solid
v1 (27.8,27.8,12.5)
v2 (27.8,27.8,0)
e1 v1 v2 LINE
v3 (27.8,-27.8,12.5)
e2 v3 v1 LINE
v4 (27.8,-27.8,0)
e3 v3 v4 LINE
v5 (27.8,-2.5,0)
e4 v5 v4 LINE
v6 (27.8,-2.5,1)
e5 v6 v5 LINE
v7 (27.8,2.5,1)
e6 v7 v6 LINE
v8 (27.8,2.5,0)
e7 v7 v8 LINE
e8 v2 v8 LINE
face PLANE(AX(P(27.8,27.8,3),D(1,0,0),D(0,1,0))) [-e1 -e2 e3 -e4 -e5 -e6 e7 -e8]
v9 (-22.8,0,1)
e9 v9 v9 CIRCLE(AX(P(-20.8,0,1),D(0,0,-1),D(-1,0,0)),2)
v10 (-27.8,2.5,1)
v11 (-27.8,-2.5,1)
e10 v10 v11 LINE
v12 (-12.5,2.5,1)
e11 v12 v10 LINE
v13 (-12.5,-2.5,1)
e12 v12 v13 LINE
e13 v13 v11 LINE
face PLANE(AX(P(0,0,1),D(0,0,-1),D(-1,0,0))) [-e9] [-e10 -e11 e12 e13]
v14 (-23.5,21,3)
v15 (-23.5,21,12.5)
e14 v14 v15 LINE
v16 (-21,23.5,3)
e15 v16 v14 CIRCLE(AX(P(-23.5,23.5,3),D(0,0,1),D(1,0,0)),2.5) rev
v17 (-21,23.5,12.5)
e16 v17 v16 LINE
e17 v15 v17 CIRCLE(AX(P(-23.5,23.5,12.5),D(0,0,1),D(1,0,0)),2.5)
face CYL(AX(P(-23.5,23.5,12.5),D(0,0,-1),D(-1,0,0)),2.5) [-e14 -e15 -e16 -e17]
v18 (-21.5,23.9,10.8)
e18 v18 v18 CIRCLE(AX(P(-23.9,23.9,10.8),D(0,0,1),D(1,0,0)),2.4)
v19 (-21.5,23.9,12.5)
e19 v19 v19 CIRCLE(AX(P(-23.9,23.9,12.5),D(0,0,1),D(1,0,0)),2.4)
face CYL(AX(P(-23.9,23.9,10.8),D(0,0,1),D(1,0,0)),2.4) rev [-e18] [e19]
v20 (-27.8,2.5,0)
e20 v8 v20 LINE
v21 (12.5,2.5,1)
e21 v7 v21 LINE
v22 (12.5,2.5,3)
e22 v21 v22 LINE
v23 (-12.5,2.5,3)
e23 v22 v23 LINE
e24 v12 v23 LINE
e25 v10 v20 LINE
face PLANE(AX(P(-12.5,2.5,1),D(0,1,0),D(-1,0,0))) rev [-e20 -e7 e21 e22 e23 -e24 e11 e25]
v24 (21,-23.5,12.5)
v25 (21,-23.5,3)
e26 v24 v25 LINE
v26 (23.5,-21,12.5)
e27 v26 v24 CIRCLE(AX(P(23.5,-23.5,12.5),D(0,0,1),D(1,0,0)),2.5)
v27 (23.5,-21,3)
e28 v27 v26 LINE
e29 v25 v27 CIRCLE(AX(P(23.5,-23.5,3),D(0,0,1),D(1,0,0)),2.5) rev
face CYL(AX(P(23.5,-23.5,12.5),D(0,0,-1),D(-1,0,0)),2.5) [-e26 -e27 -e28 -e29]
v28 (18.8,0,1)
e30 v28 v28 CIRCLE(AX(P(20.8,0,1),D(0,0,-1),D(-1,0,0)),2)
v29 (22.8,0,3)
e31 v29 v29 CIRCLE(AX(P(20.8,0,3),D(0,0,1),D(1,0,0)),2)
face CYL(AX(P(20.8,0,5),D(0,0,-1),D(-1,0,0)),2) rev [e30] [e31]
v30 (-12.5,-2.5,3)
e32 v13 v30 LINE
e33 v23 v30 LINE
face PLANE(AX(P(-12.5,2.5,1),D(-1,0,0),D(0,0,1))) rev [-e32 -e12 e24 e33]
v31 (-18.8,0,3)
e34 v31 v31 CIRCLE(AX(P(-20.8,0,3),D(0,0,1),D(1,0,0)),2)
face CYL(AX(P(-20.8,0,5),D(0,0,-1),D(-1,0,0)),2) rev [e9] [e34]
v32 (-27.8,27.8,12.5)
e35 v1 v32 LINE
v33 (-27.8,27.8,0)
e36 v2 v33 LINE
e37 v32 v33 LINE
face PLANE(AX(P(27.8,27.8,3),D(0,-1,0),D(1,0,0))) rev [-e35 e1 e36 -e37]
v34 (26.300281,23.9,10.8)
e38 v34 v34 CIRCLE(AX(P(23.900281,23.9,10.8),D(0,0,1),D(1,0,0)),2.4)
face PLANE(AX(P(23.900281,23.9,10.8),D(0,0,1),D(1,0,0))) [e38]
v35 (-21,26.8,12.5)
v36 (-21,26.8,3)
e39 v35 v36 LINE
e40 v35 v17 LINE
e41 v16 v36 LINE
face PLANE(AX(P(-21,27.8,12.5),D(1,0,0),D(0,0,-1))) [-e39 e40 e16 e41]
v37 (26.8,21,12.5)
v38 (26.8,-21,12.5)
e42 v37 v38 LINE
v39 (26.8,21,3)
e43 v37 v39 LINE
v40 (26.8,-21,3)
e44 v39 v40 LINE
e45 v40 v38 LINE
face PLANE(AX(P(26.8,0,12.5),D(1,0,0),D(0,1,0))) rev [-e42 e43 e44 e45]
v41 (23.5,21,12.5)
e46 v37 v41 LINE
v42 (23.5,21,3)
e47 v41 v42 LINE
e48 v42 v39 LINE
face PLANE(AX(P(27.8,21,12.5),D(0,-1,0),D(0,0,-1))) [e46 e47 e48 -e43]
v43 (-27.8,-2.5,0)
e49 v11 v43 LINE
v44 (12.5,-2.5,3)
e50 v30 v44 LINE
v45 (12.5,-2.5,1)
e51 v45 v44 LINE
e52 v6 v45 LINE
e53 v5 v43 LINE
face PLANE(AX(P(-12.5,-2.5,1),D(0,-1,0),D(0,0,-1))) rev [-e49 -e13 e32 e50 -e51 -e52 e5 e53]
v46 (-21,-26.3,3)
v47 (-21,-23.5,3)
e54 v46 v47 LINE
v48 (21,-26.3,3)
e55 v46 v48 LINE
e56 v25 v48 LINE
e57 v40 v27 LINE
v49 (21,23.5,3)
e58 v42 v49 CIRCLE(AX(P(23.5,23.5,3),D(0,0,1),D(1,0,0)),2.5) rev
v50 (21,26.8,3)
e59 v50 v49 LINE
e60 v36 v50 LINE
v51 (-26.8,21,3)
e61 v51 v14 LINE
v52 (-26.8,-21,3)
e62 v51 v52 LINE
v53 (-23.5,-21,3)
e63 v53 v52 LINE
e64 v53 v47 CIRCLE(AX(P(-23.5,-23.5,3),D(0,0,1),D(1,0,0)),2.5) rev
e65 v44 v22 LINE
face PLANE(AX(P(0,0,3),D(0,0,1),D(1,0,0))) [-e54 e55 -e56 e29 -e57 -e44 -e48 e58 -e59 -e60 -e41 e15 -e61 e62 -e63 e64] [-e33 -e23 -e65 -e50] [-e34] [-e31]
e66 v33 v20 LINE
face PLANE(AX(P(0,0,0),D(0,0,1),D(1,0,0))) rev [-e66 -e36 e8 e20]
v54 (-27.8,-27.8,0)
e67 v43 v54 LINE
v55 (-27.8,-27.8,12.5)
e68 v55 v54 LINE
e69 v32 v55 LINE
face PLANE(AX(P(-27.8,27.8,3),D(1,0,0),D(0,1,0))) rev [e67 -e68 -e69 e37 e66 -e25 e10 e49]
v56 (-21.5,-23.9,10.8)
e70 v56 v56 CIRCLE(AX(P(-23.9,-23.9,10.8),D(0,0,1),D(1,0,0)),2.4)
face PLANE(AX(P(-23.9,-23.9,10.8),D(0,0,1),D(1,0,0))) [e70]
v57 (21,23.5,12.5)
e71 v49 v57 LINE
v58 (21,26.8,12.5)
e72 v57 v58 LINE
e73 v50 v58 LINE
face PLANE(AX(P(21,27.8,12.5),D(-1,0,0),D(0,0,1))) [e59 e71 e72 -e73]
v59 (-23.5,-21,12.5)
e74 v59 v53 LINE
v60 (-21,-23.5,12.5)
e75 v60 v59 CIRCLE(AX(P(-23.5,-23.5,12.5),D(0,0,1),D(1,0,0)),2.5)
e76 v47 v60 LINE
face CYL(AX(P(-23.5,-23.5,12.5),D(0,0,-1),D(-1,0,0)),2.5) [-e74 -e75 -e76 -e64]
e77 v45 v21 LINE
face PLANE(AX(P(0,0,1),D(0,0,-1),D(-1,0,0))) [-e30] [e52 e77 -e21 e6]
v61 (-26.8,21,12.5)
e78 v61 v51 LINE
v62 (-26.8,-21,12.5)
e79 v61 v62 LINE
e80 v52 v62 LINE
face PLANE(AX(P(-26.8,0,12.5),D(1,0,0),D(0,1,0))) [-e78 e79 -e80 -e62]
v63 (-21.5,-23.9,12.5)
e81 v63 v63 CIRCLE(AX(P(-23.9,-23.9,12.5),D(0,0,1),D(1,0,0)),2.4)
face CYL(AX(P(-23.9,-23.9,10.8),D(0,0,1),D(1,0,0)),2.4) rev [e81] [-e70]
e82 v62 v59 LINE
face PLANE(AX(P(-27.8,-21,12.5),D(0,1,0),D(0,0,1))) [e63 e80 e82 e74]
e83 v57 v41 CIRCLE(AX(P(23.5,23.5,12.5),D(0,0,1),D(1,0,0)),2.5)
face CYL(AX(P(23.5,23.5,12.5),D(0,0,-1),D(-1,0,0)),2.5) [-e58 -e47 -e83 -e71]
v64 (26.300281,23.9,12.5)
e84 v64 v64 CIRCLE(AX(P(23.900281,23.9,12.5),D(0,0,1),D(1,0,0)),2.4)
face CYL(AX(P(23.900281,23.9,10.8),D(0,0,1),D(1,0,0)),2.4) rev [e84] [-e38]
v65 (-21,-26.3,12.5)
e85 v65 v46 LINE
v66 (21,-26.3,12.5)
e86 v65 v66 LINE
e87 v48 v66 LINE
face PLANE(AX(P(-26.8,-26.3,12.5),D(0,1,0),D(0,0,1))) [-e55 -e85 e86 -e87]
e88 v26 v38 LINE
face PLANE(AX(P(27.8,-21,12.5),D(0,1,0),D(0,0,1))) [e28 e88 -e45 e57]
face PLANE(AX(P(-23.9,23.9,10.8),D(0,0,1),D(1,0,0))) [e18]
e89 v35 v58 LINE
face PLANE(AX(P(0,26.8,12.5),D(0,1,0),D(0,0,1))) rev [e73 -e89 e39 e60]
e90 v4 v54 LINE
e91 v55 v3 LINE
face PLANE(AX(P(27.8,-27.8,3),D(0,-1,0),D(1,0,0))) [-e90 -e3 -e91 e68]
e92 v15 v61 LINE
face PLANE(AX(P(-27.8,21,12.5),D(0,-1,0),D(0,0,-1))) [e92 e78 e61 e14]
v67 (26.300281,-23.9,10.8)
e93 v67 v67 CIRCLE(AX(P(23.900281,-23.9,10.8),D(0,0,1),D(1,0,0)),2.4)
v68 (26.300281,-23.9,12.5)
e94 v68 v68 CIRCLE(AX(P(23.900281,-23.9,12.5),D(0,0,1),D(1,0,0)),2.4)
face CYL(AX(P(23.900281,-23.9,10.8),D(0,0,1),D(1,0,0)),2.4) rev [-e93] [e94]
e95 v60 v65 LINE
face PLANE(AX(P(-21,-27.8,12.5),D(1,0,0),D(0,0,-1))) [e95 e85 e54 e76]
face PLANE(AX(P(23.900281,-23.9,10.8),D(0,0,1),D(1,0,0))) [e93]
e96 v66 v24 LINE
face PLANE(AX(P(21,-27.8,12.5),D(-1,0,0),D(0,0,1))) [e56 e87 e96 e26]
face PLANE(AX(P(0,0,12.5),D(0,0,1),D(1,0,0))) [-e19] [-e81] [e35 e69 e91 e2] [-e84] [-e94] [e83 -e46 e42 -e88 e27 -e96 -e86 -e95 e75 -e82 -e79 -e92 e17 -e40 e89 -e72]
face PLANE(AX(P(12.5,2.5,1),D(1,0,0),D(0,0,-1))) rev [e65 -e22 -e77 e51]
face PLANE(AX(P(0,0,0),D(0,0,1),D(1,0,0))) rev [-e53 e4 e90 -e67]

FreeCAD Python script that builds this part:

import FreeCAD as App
import Part
import Sketcher

V = App.Vector
Q = App.Units.Quantity


def edges_at(feature, points):
    """Names of the edges that pass closest to the given points."""
    edges = feature.Shape.Edges
    near = lambda p: min(range(len(edges)), key=lambda i: edges[i].distToShape(Part.Vertex(*p))[0])
    return sorted({f"Edge{near(p) + 1}" for p in points})

doc = App.newDocument("Part")
body = doc.addObject("PartDesign::Body", "Body")

sketch1 = doc.addObject("Sketcher::SketchObject", "Sketch")
body.addObject(sketch1)
sketch1.AttachmentSupport = (doc.XY_Plane, [""])
sketch1.MapMode = "FlatFace"
sketch1.addGeometry(Part.LineSegment(V(-27.8, 27.8, 0), V(-27.8, -27.8, 0)), False)
sketch1.addGeometry(Part.LineSegment(V(-27.8, -27.8, 0), V(27.8, -27.8, 0)), False)
sketch1.addGeometry(Part.LineSegment(V(27.8, -27.8, 0), V(27.8, 27.8, 0)), False)
sketch1.addGeometry(Part.LineSegment(V(27.8, 27.8, 0), V(-27.8, 27.8, 0)), False)
sketch1.addConstraint(Sketcher.Constraint("Coincident", 0, 2, 1, 1))
sketch1.addConstraint(Sketcher.Constraint("Coincident", 1, 2, 2, 1))
sketch1.addConstraint(Sketcher.Constraint("Coincident", 2, 2, 3, 1))
sketch1.addConstraint(Sketcher.Constraint("Coincident", 3, 2, 0, 1))
sketch1.addConstraint(Sketcher.Constraint("Vertical", 0))
sketch1.addConstraint(Sketcher.Constraint("Horizontal", 1))
sketch1.addConstraint(Sketcher.Constraint("Vertical", 2))
sketch1.addConstraint(Sketcher.Constraint("Horizontal", 3))
sketch1.addConstraint(Sketcher.Constraint("Symmetric", 0, 2, 2, 2, -1, 1))
sketch1.addConstraint(Sketcher.Constraint("Equal", 3, 0))
sketch1.addConstraint(Sketcher.Constraint("DistanceX", 1, 1, 1, 2, Q("55.6 mm")))
pad1 = doc.addObject("PartDesign::Pad", "Pad")
body.addObject(pad1)
pad1.Profile = sketch1
pad1.Length = 3

sketch2 = doc.addObject("Sketcher::SketchObject", "Sketch001")
body.addObject(sketch2)
sketch2.AttachmentSupport = (doc.XY_Plane, [""])
sketch2.MapMode = "FlatFace"
sketch2.AttachmentOffset = App.Placement(V(0, 0, 3), App.Rotation())
sketch2.addGeometry(Part.LineSegment(V(-12.5, 2.5, 0), V(-12.5, -2.5, 0)), False)
sketch2.addGeometry(Part.LineSegment(V(-12.5, -2.5, 0), V(12.5, -2.5, 0)), False)
sketch2.addGeometry(Part.LineSegment(V(12.5, -2.5, 0), V(12.5, 2.5, 0)), False)
sketch2.addGeometry(Part.LineSegment(V(12.5, 2.5, 0), V(-12.5, 2.5, 0)), False)
sketch2.addConstraint(Sketcher.Constraint("Coincident", 0, 2, 1, 1))
sketch2.addConstraint(Sketcher.Constraint("Coincident", 1, 2, 2, 1))
sketch2.addConstraint(Sketcher.Constraint("Coincident", 2, 2, 3, 1))
sketch2.addConstraint(Sketcher.Constraint("Coincident", 3, 2, 0, 1))
sketch2.addConstraint(Sketcher.Constraint("Vertical", 0))
sketch2.addConstraint(Sketcher.Constraint("Horizontal", 1))
sketch2.addConstraint(Sketcher.Constraint("Vertical", 2))
sketch2.addConstraint(Sketcher.Constraint("Horizontal", 3))
sketch2.addConstraint(Sketcher.Constraint("Symmetric", 0, 2, 2, 2, -1, 1))
sketch2.addConstraint(Sketcher.Constraint("DistanceX", 1, 1, 1, 2, Q("25 mm")))
sketch2.addConstraint(Sketcher.Constraint("DistanceY", 0, 2, 0, 1, Q("5 mm")))
pocket1 = doc.addObject("PartDesign::Pocket", "Pocket")
body.addObject(pocket1)
pocket1.Profile = sketch2
pocket1.Length = 2

sketch3 = doc.addObject("Sketcher::SketchObject", "Sketch002")
body.addObject(sketch3)
sketch3.AttachmentSupport = (doc.XY_Plane, [""])
sketch3.MapMode = "FlatFace"
sketch3.addGeometry(Part.LineSegment(V(27.8, 2.5, 0), V(27.8, -2.5, 0)), False)
sketch3.addGeometry(Part.LineSegment(V(27.8, -2.5, 0), V(-27.8, -2.5, 0)), False)
sketch3.addGeometry(Part.LineSegment(V(-27.8, -2.5, 0), V(-27.8, 2.5, 0)), False)
sketch3.addGeometry(Part.LineSegment(V(-27.8, 2.5, 0), V(27.8, 2.5, 0)), False)
sketch3.addConstraint(Sketcher.Constraint("Coincident", 0, 2, 1, 1))
sketch3.addConstraint(Sketcher.Constraint("Coincident", 1, 2, 2, 1))
sketch3.addConstraint(Sketcher.Constraint("Coincident", 2, 2, 3, 1))
sketch3.addConstraint(Sketcher.Constraint("Coincident", 3, 2, 0, 1))
sketch3.addConstraint(Sketcher.Constraint("Vertical", 0))
sketch3.addConstraint(Sketcher.Constraint("Horizontal", 1))
sketch3.addConstraint(Sketcher.Constraint("Vertical", 2))
sketch3.addConstraint(Sketcher.Constraint("Horizontal", 3))
sketch3.addConstraint(Sketcher.Constraint("Symmetric", 0, 2, 2, 2, -1, 1))
sketch3.addConstraint(Sketcher.Constraint("DistanceY", 0, 2, 0, 1, Q("5 mm")))
sketch3.addConstraint(Sketcher.Constraint("DistanceX", 1, 2, 1, 1, Q("55.6 mm")))
pocket2 = doc.addObject("PartDesign::Pocket", "Pocket001")
body.addObject(pocket2)
pocket2.Profile = sketch3
pocket2.Length = 1
pocket2.Reversed = True

sketch4 = doc.addObject("Sketcher::SketchObject", "Sketch003")
body.addObject(sketch4)
sketch4.AttachmentSupport = (doc.XY_Plane, [""])
sketch4.MapMode = "FlatFace"
sketch4.AttachmentOffset = App.Placement(V(0, 0, 3), App.Rotation())
sketch4.addGeometry(Part.LineSegment(V(27.8, 27.8, 0), V(-27.8, 27.8, 0)), False)
sketch4.addGeometry(Part.LineSegment(V(-27.8, 27.8, 0), V(-27.8, -27.8, 0)), False)
sketch4.addGeometry(Part.LineSegment(V(-27.8, -27.8, 0), V(27.8, -27.8, 0)), False)
sketch4.addGeometry(Part.LineSegment(V(27.8, -27.8, 0), V(27.8, 27.8, 0)), False)
sketch4.addGeometry(Part.LineSegment(V(-26.8, -26.3, 0), V(-26.8, 26.8, 0)), False)
sketch4.addGeometry(Part.LineSegment(V(-26.8, 26.8, 0), V(26.8, 26.8, 0)), False)
sketch4.addGeometry(Part.LineSegment(V(26.8, 26.8, 0), V(26.8, -26.3, 0)), False)
sketch4.addGeometry(Part.LineSegment(V(26.8, -26.3, 0), V(-26.8, -26.3, 0)), False)
sketch4.addConstraint(Sketcher.Constraint("Coincident", 0, 2, 1, 1))
sketch4.addConstraint(Sketcher.Constraint("Coincident", 1, 2, 2, 1))
sketch4.addConstraint(Sketcher.Constraint("Coincident", 2, 2, 3, 1))
sketch4.addConstraint(Sketcher.Constraint("Coincident", 3, 2, 0, 1))
sketch4.addConstraint(Sketcher.Constraint("Coincident", 4, 2, 5, 1))
sketch4.addConstraint(Sketcher.Constraint("Coincident", 5, 2, 6, 1))
sketch4.addConstraint(Sketcher.Constraint("Coincident", 6, 2, 7, 1))
sketch4.addConstraint(Sketcher.Constraint("Coincident", 7, 2, 4, 1))
sketch4.addConstraint(Sketcher.Constraint("Horizontal", 0))
sketch4.addConstraint(Sketcher.Constraint("Vertical", 1))
sketch4.addConstraint(Sketcher.Constraint("Horizontal", 2))
sketch4.addConstraint(Sketcher.Constraint("Vertical", 3))
sketch4.addConstraint(Sketcher.Constraint("Vertical", 4))
sketch4.addConstraint(Sketcher.Constraint("Horizontal", 5))
sketch4.addConstraint(Sketcher.Constraint("Vertical", 6))
sketch4.addConstraint(Sketcher.Constraint("Horizontal", 7))
sketch4.addConstraint(Sketcher.Constraint("Symmetric", 0, 2, 2, 2, -1, 1))
sketch4.addConstraint(Sketcher.Constraint("Equal", 2, 1))
sketch4.addConstraint(Sketcher.Constraint("DistanceX", 0, 2, 0, 1, Q("55.6 mm")))
sketch4.addConstraint(Sketcher.Constraint("DistanceX", 5, 1, 5, 2, Q("53.6 mm")))
sketch4.addConstraint(Sketcher.Constraint("DistanceY", 4, 1, 4, 2, Q("53.1 mm")))
sketch4.addConstraint(Sketcher.Constraint("DistanceX", 0, 2, 4, 2, Q("1 mm")))
sketch4.addConstraint(Sketcher.Constraint("DistanceY", 4, 2, 0, 2, Q("1 mm")))
pad2 = doc.addObject("PartDesign::Pad", "Pad001")
body.addObject(pad2)
pad2.Profile = sketch4
pad2.Length = 9.5

sketch5 = doc.addObject("Sketcher::SketchObject", "Sketch004")
body.addObject(sketch5)
sketch5.AttachmentSupport = (doc.XY_Plane, [""])
sketch5.MapMode = "FlatFace"
sketch5.AttachmentOffset = App.Placement(V(0, 0, 1), App.Rotation())
sketch5.addGeometry(Part.Circle(V(20.8, 0, 0), V(0, 0, 1), 2), False)
sketch5.addGeometry(Part.Circle(V(-20.8, 0, 0), V(0, 0, 1), 2), False)
sketch5.addConstraint(Sketcher.Constraint("Equal", 0, 1))
sketch5.addConstraint(Sketcher.Constraint("Symmetric", 0, 3, 1, 3, -1, 1))
sketch5.addConstraint(Sketcher.Constraint("PointOnObject", 0, 3, -1))
sketch5.addConstraint(Sketcher.Constraint("Diameter", 0, Q("4 mm")))
sketch5.addConstraint(Sketcher.Constraint("DistanceX", -1, 1, 0, 3, Q("20.8 mm")))
pocket3 = doc.addObject("PartDesign::Pocket", "Pocket002")
body.addObject(pocket3)
pocket3.Profile = sketch5
pocket3.Length = 4
pocket3.Reversed = True

sketch6 = doc.addObject("Sketcher::SketchObject", "Sketch005")
body.addObject(sketch6)
sketch6.AttachmentSupport = (doc.XY_Plane, [""])
sketch6.MapMode = "FlatFace"
sketch6.addGeometry(Part.LineSegment(V(27.8, 27.8, 0), V(27.8, 21, 0)), False)
sketch6.addGeometry(Part.LineSegment(V(27.8, 21, 0), V(21, 21, 0)), False)
sketch6.addGeometry(Part.LineSegment(V(21, 21, 0), V(21, 27.8, 0)), False)
sketch6.addGeometry(Part.LineSegment(V(21, 27.8, 0), V(27.8, 27.8, 0)), False)
sketch6.addGeometry(Part.LineSegment(V(-21, 27.8, 0), V(-21, 21, 0)), False)
sketch6.addGeometry(Part.LineSegment(V(-21, 21, 0), V(-27.8, 21, 0)), False)
sketch6.addGeometry(Part.LineSegment(V(-27.8, 21, 0), V(-27.8, 27.8, 0)), False)
sketch6.addGeometry(Part.LineSegment(V(-27.8, 27.8, 0), V(-21, 27.8, 0)), False)
sketch6.addGeometry(Part.LineSegment(V(27.8, -21, 0), V(27.8, -27.8, 0)), False)
sketch6.addGeometry(Part.LineSegment(V(27.8, -27.8, 0), V(21, -27.8, 0)), False)
sketch6.addGeometry(Part.LineSegment(V(21, -27.8, 0), V(21, -21, 0)), False)
sketch6.addGeometry(Part.LineSegment(V(21, -21, 0), V(27.8, -21, 0)), False)
sketch6.addGeometry(Part.LineSegment(V(-21, -21, 0), V(-21, -27.8, 0)), False)
sketch6.addGeometry(Part.LineSegment(V(-21, -27.8, 0), V(-27.8, -27.8, 0)), False)
sketch6.addGeometry(Part.LineSegment(V(-27.8, -27.8, 0), V(-27.8, -21, 0)), False)
sketch6.addGeometry(Part.LineSegment(V(-27.8, -21, 0), V(-21, -21, 0)), False)
sketch6.addConstraint(Sketcher.Constraint("Coincident", 0, 2, 1, 1))
sketch6.addConstraint(Sketcher.Constraint("Coincident", 1, 2, 2, 1))
sketch6.addConstraint(Sketcher.Constraint("Coincident", 2, 2, 3, 1))
sketch6.addConstraint(Sketcher.Constraint("Coincident", 3, 2, 0, 1))
sketch6.addConstraint(Sketcher.Constraint("Coincident", 4, 2, 5, 1))
sketch6.addConstraint(Sketcher.Constraint("Coincident", 5, 2, 6, 1))
sketch6.addConstraint(Sketcher.Constraint("Coincident", 6, 2, 7, 1))
sketch6.addConstraint(Sketcher.Constraint("Coincident", 7, 2, 4, 1))
sketch6.addConstraint(Sketcher.Constraint("Coincident", 8, 2, 9, 1))
sketch6.addConstraint(Sketcher.Constraint("Coincident", 9, 2, 10, 1))
sketch6.addConstraint(Sketcher.Constraint("Coincident", 10, 2, 11, 1))
sketch6.addConstraint(Sketcher.Constraint("Coincident", 11, 2, 8, 1))
sketch6.addConstraint(Sketcher.Constraint("Coincident", 12, 2, 13, 1))
sketch6.addConstraint(Sketcher.Constraint("Coincident", 13, 2, 14, 1))
sketch6.addConstraint(Sketcher.Constraint("Coincident", 14, 2, 15, 1))
sketch6.addConstraint(Sketcher.Constraint("Coincident", 15, 2, 12, 1))
sketch6.addConstraint(Sketcher.Constraint("Vertical", 0))
sketch6.addConstraint(Sketcher.Constraint("Horizontal", 1))
sketch6.addConstraint(Sketcher.Constraint("Vertical", 2))
sketch6.addConstraint(Sketcher.Constraint("Horizontal", 3))
sketch6.addConstraint(Sketcher.Constraint("Vertical", 4))
sketch6.addConstraint(Sketcher.Constraint("Horizontal", 5))
sketch6.addConstraint(Sketcher.Constraint("Vertical", 6))
sketch6.addConstraint(Sketcher.Constraint("Horizontal", 7))
sketch6.addConstraint(Sketcher.Constraint("Vertical", 8))
sketch6.addConstraint(Sketcher.Constraint("Horizontal", 9))
sketch6.addConstraint(Sketcher.Constraint("Vertical", 10))
sketch6.addConstraint(Sketcher.Constraint("Horizontal", 11))
sketch6.addConstraint(Sketcher.Constraint("Vertical", 12))
sketch6.addConstraint(Sketcher.Constraint("Horizontal", 13))
sketch6.addConstraint(Sketcher.Constraint("Vertical", 14))
sketch6.addConstraint(Sketcher.Constraint("Horizontal", 15))
sketch6.addConstraint(Sketcher.Constraint("Symmetric", 6, 2, 8, 2, -1, 1))
sketch6.addConstraint(Sketcher.Constraint("Symmetric", 4, 2, 10, 2, -1, 1))
sketch6.addConstraint(Sketcher.Constraint("Symmetric", 2, 2, 12, 2, -1, 1))
sketch6.addConstraint(Sketcher.Constraint("Symmetric", 0, 2, 14, 2, -1, 1))
sketch6.addConstraint(Sketcher.Constraint("Symmetric", 1, 2, 4, 2, -2))
sketch6.addConstraint(Sketcher.Constraint("Symmetric", 3, 2, 6, 2, -2))
sketch6.addConstraint(Sketcher.Constraint("Equal", 15, 0))
sketch6.addConstraint(Sketcher.Constraint("DistanceX", 1, 2, 1, 1, Q("6.8 mm")))
sketch6.addConstraint(Sketcher.Constraint("DistanceY", -1, 1, 0, 2, Q("21 mm")))
sketch6.addConstraint(Sketcher.Constraint("DistanceX", -1, 1, 1, 2, Q("21 mm")))
pad3 = doc.addObject("PartDesign::Pad", "Pad002")
body.addObject(pad3)
pad3.Profile = sketch6
pad3.Length = 12.5

sketch7 = doc.addObject("Sketcher::SketchObject", "Sketch006")
body.addObject(sketch7)
sketch7.AttachmentSupport = (doc.XY_Plane, [""])
sketch7.MapMode = "FlatFace"
sketch7.AttachmentOffset = App.Placement(V(0, 0, 12.5), App.Rotation())
sketch7.addGeometry(Part.Circle(V(-23.9, -23.9, 0), V(0, 0, 1), 2.4), False)
sketch7.addGeometry(Part.Circle(V(-23.9, 23.9, 0), V(0, 0, 1), 2.4), False)
sketch7.addGeometry(Part.Circle(V(23.900281, 23.9, 0), V(0, 0, 1), 2.4), False)
sketch7.addGeometry(Part.Circle(V(23.900281, -23.9, 0), V(0, 0, 1), 2.4), False)
sketch7.addConstraint(Sketcher.Constraint("Equal", 0, 1))
sketch7.addConstraint(Sketcher.Constraint("Equal", 1, 2))
sketch7.addConstraint(Sketcher.Constraint("Equal", 2, 3))
sketch7.addConstraint(Sketcher.Constraint("Symmetric", 0, 3, 1, 3, -1))
sketch7.addConstraint(Sketcher.Constraint("Symmetric", 2, 3, 3, 3, -1))
sketch7.addConstraint(Sketcher.Constraint("Horizontal", 1, 3, 2, 3))
sketch7.addConstraint(Sketcher.Constraint("Diameter", 0, Q("4.8 mm")))
sketch7.addConstraint(Sketcher.Constraint("DistanceX", 0, 3, -1, 1, Q("23.9 mm")))
sketch7.addConstraint(Sketcher.Constraint("DistanceY", 0, 3, -1, 1, Q("23.9 mm")))
sketch7.addConstraint(Sketcher.Constraint("DistanceX", -1, 1, 2, 3, Q("23.900281 mm")))
pocket4 = doc.addObject("PartDesign::Pocket", "Pocket003")
body.addObject(pocket4)
pocket4.Profile = sketch7
pocket4.Length = 1.7
doc.recompute()

fillet = doc.addObject("PartDesign::Fillet", "Fillet")
body.addObject(fillet)
fillet.Base = (pocket4, edges_at(pocket4, [
    (-21, 21, 7.75),
    (21, -21, 7.75),
    (-21, -21, 7.75),
    (21, 21, 7.75),
]))
fillet.Radius = 2.5

doc.recompute()
